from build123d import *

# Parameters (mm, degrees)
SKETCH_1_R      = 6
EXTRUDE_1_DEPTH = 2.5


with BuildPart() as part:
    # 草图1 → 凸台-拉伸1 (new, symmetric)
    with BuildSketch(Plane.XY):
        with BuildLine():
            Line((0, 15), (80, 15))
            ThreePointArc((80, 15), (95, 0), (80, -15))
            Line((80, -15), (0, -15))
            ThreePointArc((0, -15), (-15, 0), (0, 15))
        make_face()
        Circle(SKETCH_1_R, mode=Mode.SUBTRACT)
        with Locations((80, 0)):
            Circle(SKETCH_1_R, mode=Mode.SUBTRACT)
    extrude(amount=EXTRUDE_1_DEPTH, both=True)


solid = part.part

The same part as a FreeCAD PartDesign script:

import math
import FreeCAD as App
import Part
import Sketcher
from FreeCAD import Vector

doc = App.newDocument("Part")
params = doc.addObject("Spreadsheet::Sheet", "Params")
for row, (alias, value) in enumerate([
    ("sketch1_diameter", "12 mm"),
    ("sketch1_radius", "15 mm"),
    ("sketch1_width", "80 mm"),
    ("pad1_length", "5 mm"),
], start=1):
    params.set(f"A{row}", alias)
    params.set(f"B{row}", "=" + value)
    params.setAlias(f"B{row}", alias)

body = doc.addObject("PartDesign::Body", "Body")

# Sketch on XY plane
sketch1 = body.newObject("Sketcher::SketchObject", "Sketch")
sketch1.AttachmentSupport = (doc.getObject("XY_Plane"), [""])
sketch1.MapMode = "FlatFace"
sketch1.addGeometry(Part.LineSegment(Vector(80, 15, 0), Vector(0, 15, 0)), False)
sketch1.addGeometry(Part.ArcOfCircle(Part.Circle(Vector(0, 0, 0), Vector(0, 0, 1), 15), math.radians(90), math.radians(270)), False)
sketch1.addGeometry(Part.LineSegment(Vector(0, -15, 0), Vector(80, -15, 0)), False)
sketch1.addGeometry(Part.ArcOfCircle(Part.Circle(Vector(80, 0, 0), Vector(0, 0, 1), 15), math.radians(-90), math.radians(90)), False)
sketch1.addGeometry(Part.Circle(Vector(80, 0, 0), Vector(0, 0, 1), 6), False)
sketch1.addGeometry(Part.Circle(Vector(0, 0, 0), Vector(0, 0, 1), 6), False)
sketch1.addConstraint(Sketcher.Constraint("Tangent", 0, 2, 1, 1))
sketch1.addConstraint(Sketcher.Constraint("Tangent", 1, 2, 2, 1))
sketch1.addConstraint(Sketcher.Constraint("Tangent", 2, 2, 3, 1))
sketch1.addConstraint(Sketcher.Constraint("Tangent", 3, 2, 0, 1))
sketch1.addConstraint(Sketcher.Constraint("Horizontal", 0))
sketch1.addConstraint(Sketcher.Constraint("Horizontal", 2))
sketch1.addConstraint(Sketcher.Constraint("Coincident", 1, 3, -1, 1))
sketch1.addConstraint(Sketcher.Constraint("Coincident", 5, 3, -1, 1))
sketch1.addConstraint(Sketcher.Constraint("Coincident", 4, 3, 3, 3))
sketch1.addConstraint(Sketcher.Constraint("Equal", 4, 5))
sketch1.addConstraint(Sketcher.Constraint("Diameter", 4, 12.0))
sketch1.addConstraint(Sketcher.Constraint("Radius", 1, 15.0))
sketch1.addConstraint(Sketcher.Constraint("DistanceX", 0, 2, 0, 1, 80.0))
sketch1.setExpression("Constraints[10]", "Params.sketch1_diameter")
sketch1.setExpression("Constraints[11]", "Params.sketch1_radius")
sketch1.setExpression("Constraints[12]", "Params.sketch1_width")
pad1 = body.newObject("PartDesign::Pad", "Pad")
pad1.Profile = sketch1
pad1.setExpression("Length", "Params.pad1_length")
pad1.Midplane = True

doc.recompute()
